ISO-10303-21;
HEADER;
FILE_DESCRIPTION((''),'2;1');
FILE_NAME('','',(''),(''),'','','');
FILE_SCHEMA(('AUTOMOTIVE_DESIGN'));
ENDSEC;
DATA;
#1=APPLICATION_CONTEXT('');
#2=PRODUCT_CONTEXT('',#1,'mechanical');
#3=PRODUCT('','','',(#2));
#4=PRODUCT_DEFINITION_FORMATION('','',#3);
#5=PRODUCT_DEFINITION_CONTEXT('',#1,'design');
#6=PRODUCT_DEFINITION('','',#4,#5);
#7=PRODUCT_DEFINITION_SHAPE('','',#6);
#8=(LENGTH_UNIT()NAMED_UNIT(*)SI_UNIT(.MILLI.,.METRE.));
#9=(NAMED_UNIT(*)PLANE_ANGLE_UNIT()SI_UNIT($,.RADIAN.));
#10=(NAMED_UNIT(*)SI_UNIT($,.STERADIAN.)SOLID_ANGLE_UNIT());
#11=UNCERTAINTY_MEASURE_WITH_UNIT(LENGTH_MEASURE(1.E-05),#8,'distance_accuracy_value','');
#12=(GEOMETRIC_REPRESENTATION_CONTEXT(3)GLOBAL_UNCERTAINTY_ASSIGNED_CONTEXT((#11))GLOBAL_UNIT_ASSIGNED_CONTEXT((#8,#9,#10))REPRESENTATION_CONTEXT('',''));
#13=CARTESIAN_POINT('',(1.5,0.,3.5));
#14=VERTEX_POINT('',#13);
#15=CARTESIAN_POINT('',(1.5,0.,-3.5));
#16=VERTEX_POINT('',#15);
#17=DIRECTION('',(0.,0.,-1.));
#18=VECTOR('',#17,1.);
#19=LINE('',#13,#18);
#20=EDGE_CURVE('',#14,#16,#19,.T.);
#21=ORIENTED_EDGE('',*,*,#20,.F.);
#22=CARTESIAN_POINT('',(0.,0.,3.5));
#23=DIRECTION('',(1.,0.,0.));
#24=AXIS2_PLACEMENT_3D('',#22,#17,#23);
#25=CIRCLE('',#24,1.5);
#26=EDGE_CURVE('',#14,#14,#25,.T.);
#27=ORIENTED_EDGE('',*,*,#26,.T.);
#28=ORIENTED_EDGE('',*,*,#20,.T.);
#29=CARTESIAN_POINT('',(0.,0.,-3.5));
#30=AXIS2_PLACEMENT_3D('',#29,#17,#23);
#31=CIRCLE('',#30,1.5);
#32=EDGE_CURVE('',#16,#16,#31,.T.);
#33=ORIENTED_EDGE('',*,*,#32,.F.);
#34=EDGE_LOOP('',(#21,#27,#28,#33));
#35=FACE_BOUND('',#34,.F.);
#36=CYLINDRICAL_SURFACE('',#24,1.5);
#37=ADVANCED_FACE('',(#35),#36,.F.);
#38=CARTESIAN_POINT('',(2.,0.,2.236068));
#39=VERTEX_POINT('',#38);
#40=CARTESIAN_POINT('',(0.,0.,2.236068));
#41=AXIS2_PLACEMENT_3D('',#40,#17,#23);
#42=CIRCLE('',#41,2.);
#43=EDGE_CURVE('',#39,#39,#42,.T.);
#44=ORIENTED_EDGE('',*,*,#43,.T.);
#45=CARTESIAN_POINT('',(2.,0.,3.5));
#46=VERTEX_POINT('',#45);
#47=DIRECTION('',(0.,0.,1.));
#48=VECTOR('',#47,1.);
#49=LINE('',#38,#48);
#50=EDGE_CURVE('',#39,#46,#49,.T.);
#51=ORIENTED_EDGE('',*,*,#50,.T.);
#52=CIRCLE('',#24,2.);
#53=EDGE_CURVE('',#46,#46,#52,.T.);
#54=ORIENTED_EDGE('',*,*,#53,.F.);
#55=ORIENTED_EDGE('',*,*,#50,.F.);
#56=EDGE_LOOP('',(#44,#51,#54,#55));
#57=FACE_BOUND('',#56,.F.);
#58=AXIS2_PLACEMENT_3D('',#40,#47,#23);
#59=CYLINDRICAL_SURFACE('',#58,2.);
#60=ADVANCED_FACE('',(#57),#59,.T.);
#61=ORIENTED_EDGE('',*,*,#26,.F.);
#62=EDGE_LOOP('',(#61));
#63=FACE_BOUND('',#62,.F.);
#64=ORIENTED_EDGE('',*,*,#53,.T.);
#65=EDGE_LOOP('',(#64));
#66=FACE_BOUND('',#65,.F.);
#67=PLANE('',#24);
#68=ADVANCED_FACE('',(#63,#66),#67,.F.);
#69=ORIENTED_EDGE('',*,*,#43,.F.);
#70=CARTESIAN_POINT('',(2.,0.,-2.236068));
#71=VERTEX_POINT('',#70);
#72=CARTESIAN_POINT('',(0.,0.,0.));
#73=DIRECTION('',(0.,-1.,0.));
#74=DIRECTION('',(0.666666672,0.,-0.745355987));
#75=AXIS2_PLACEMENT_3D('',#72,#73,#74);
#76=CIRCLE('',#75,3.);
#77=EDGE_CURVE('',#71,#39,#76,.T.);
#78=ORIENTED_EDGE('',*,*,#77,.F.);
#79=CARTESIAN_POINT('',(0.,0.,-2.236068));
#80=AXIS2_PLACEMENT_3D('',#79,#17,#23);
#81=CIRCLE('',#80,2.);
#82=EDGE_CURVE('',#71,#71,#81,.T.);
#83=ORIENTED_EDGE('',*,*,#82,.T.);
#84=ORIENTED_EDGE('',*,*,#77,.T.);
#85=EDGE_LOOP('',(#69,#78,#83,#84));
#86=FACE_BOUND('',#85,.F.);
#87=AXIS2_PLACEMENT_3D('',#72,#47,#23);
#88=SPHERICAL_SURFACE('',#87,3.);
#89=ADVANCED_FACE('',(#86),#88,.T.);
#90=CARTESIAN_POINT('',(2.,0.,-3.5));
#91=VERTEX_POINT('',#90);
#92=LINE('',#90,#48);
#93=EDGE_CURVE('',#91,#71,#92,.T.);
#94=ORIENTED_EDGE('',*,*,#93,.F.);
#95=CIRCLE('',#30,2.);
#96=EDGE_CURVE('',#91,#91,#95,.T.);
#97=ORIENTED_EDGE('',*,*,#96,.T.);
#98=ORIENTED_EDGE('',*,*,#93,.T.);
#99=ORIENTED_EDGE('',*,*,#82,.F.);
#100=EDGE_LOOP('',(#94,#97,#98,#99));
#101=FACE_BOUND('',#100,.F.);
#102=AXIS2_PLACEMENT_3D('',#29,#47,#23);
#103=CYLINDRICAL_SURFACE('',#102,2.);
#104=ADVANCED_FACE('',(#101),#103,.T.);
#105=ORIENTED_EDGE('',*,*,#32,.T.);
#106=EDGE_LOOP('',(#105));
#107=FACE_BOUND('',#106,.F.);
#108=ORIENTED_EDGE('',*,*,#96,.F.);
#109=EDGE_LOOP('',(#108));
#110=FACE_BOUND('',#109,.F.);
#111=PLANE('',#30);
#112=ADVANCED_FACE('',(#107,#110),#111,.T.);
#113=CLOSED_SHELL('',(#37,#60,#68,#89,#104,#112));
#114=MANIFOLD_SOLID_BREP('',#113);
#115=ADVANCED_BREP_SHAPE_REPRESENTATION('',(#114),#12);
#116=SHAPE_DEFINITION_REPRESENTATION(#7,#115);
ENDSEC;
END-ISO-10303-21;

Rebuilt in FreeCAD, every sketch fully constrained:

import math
import FreeCAD as App
import Part
import Sketcher
from FreeCAD import Vector
Q = App.Units.Quantity

doc = App.newDocument("Part")
params = doc.addObject("Spreadsheet::Sheet", "Params")
for row, (alias, value) in enumerate([
    ("sketch1_radius", "3 mm"),
    ("sketch1_height", "7 mm"),
    ("sketch1_width", "0.5 mm"),
    ("revolution_angle", "360 deg"),
], start=1):
    params.set(f"A{row}", alias)
    params.set(f"B{row}", "=" + value)
    params.setAlias(f"B{row}", alias)

body = doc.addObject("PartDesign::Body", "Body")

# Sketch on XZ plane
sketch1 = doc.addObject("Sketcher::SketchObject", "Sketch")
body.addObject(sketch1)
sketch1.AttachmentSupport = (doc.XZ_Plane, [""])
sketch1.MapMode = "FlatFace"
sketch1.addGeometry([
    Part.LineSegment(Vector(2, -3.5, 0), Vector(2, -2.236068, 0)),  # 0
    Part.ArcOfCircle(Part.Circle(Vector(0, 0, 0), Vector(0, 0, 1), 3), math.radians(-48.189685), math.radians(48.189685)),  # 1
    Part.LineSegment(Vector(2, 2.236068, 0), Vector(2, 3.5, 0)),  # 2
    Part.LineSegment(Vector(2, 3.5, 0), Vector(1.5, 3.5, 0)),  # 3
    Part.LineSegment(Vector(1.5, 3.5, 0), Vector(1.5, -3.5, 0)),  # 4
    Part.LineSegment(Vector(1.5, -3.5, 0), Vector(2, -3.5, 0)),  # 5
], False)
sketch1.addConstraint([
    Sketcher.Constraint("Coincident", 0, 2, 1, 1),
    Sketcher.Constraint("Coincident", 1, 2, 2, 1),
    Sketcher.Constraint("Coincident", 2, 2, 3, 1),
    Sketcher.Constraint("Coincident", 3, 2, 4, 1),
    Sketcher.Constraint("Coincident", 4, 2, 5, 1),
    Sketcher.Constraint("Coincident", 5, 2, 0, 1),
    Sketcher.Constraint("Vertical", 0),
    Sketcher.Constraint("Vertical", 2),
    Sketcher.Constraint("Horizontal", 3),
    Sketcher.Constraint("Vertical", 4),
    Sketcher.Constraint("Horizontal", 5),
    Sketcher.Constraint("Coincident", 1, 3, -1, 1),
    Sketcher.Constraint("Symmetric", 2, 2, 5, 2, -1),
    Sketcher.Constraint("Radius", 1, Q("3 mm")),
    Sketcher.Constraint("DistanceY", 4, 2, 4, 1, Q("7 mm")),
    Sketcher.Constraint("DistanceX", 3, 2, 3, 1, Q("0.5 mm")),
    Sketcher.Constraint("DistanceX", -1, 1, 0, 2, Q("2 mm")),
])
sketch1.setExpression("Constraints[13]", "Params.sketch1_radius")
sketch1.setExpression("Constraints[14]", "Params.sketch1_height")
sketch1.setExpression("Constraints[15]", "Params.sketch1_width")
revolution = doc.addObject("PartDesign::Revolution", "Revolution")
body.addObject(revolution)
revolution.Profile = sketch1
revolution.ReferenceAxis = (sketch1, ["V_Axis"])
revolution.setExpression("Angle", "Params.revolution_angle")

doc.recompute()
